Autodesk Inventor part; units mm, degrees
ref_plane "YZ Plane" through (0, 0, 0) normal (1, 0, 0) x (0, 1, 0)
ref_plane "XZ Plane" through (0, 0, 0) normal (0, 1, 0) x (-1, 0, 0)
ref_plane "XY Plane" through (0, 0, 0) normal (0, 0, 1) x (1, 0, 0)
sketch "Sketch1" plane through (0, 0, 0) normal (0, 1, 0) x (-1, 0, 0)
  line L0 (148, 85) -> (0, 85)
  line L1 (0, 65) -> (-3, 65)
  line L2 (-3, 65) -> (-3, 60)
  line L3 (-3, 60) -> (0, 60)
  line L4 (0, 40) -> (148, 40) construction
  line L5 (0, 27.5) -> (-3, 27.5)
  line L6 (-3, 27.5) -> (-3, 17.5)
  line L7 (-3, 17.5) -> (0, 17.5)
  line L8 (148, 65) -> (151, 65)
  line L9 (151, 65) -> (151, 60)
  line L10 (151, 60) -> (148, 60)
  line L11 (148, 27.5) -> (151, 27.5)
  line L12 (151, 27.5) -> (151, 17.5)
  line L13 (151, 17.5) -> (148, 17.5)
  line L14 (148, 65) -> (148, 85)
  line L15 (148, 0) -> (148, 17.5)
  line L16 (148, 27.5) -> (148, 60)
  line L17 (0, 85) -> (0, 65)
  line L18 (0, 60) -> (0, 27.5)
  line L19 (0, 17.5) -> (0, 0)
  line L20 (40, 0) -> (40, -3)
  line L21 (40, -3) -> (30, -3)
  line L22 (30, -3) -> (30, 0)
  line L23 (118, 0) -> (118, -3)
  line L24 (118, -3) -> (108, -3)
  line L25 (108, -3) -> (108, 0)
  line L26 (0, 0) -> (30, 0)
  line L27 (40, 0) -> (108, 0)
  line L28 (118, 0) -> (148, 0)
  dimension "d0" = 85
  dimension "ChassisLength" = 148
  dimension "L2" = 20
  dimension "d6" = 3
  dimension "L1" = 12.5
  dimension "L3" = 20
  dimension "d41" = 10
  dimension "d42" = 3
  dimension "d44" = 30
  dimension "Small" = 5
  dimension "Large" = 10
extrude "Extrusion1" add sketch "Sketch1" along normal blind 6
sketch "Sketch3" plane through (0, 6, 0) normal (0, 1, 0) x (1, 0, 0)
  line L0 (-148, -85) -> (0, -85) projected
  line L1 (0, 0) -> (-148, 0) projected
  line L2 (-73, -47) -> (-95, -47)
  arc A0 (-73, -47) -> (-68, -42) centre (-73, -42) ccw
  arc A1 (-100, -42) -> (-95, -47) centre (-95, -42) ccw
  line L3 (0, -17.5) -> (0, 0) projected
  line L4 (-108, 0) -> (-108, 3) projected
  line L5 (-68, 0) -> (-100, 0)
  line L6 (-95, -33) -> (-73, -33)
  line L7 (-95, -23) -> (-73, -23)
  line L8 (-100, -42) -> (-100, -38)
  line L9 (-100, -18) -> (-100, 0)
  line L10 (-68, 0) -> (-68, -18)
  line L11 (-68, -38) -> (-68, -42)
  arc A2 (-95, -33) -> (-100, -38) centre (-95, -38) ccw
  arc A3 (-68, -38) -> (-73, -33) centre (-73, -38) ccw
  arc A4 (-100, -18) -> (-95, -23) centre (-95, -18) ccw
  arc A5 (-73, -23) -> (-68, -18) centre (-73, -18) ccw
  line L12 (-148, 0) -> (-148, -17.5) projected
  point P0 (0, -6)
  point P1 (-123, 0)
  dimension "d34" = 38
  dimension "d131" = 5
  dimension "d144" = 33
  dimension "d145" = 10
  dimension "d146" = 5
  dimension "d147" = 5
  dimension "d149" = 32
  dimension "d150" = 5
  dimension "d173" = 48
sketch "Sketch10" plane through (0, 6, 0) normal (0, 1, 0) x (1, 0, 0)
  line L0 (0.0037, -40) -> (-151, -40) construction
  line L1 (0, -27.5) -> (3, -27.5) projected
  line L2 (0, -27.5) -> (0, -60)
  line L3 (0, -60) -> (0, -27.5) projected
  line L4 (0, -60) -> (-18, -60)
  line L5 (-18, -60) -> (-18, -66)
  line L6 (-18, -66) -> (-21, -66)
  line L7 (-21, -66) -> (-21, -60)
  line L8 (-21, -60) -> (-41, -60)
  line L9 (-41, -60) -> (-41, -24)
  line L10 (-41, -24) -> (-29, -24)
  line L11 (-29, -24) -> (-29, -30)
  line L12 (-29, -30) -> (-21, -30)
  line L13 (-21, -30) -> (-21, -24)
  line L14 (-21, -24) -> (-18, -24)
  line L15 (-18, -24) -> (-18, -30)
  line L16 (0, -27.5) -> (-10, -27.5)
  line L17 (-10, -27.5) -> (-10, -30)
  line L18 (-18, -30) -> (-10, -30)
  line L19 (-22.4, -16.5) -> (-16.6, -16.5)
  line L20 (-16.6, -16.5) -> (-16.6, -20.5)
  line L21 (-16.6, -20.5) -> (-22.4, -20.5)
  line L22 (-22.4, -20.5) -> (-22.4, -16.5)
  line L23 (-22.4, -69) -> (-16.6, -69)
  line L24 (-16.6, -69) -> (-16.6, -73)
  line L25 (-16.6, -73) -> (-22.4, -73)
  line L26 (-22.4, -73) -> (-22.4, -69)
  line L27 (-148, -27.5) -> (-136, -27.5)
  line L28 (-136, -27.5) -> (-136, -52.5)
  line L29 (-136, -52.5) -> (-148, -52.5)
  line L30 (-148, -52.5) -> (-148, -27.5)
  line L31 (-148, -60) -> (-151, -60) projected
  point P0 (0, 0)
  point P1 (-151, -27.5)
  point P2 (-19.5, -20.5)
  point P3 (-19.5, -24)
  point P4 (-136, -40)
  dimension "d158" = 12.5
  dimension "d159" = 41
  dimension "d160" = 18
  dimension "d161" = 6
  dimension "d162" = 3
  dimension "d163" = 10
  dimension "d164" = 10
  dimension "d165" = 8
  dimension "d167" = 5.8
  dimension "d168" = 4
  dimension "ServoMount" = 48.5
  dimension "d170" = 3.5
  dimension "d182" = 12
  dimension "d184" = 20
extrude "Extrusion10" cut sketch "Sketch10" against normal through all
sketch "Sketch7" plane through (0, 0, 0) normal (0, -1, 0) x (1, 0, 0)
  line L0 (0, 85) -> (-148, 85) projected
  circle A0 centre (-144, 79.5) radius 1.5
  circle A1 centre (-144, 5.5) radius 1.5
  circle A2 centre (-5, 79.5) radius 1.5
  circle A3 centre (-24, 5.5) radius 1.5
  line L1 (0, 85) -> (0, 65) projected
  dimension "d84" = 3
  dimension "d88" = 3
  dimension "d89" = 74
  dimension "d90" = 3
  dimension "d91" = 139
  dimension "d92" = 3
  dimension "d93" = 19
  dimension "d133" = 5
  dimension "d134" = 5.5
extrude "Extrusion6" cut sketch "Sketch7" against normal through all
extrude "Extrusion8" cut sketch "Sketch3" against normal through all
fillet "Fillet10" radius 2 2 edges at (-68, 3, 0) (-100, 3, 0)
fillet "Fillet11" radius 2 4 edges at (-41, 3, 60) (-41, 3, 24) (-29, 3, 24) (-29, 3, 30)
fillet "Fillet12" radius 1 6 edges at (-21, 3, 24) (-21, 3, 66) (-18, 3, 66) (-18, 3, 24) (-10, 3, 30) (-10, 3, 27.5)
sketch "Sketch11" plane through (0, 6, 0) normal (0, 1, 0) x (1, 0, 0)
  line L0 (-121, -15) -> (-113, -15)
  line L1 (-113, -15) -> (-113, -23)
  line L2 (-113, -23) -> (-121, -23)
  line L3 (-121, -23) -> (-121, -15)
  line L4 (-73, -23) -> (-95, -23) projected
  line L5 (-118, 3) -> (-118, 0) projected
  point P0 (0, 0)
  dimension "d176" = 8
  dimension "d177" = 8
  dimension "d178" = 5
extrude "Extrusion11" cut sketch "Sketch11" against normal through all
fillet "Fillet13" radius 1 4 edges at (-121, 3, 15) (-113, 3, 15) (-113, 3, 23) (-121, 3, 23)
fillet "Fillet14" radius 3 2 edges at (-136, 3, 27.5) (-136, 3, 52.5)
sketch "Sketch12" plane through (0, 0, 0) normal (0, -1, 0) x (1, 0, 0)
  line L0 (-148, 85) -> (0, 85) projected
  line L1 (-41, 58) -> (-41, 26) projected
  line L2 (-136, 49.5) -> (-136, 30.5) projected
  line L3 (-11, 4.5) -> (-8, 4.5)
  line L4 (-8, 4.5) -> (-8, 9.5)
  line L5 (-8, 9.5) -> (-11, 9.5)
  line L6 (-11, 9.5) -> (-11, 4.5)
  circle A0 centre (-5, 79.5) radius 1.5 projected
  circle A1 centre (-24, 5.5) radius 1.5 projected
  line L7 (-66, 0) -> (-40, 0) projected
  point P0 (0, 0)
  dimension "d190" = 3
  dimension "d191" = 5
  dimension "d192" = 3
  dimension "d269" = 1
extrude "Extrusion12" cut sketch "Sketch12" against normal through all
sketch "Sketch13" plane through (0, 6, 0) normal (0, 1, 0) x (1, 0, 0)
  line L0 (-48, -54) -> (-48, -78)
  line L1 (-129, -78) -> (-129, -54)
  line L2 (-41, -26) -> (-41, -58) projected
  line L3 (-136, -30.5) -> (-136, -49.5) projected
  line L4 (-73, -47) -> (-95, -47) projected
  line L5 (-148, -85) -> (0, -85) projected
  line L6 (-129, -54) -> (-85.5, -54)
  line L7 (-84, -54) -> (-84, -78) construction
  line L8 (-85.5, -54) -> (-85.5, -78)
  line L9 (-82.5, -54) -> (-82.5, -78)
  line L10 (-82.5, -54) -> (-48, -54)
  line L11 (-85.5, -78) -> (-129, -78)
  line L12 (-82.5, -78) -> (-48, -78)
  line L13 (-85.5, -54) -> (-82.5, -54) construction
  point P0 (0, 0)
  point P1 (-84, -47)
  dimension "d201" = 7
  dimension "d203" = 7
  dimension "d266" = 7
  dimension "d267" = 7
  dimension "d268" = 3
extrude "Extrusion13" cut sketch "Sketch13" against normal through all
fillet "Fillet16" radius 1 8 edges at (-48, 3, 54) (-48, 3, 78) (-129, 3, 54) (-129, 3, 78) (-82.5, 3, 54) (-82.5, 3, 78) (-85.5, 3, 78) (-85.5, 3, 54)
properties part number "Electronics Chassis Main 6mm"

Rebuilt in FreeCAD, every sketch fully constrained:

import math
import FreeCAD as App
import Part
import Sketcher

V = App.Vector
Q = App.Units.Quantity


def edges_at(feature, points):
    """Names of the edges that pass closest to the given points."""
    edges = feature.Shape.Edges
    near = lambda p: min(range(len(edges)), key=lambda i: edges[i].distToShape(Part.Vertex(*p))[0])
    return sorted({f"Edge{near(p) + 1}" for p in points})


def add_polygon(sketch, points):
    """Adds a closed chain of lines whose ends are joined by coincident constraints."""
    first, n = sketch.GeometryCount, len(points)
    for a, b in zip(points, points[1:] + points[:1]):
        sketch.addGeometry(Part.LineSegment(App.Vector(*a, 0), App.Vector(*b, 0)), False)
    for i in range(n):
        sketch.addConstraint(Sketcher.Constraint("Coincident", first + i, 2, first + (i + 1) % n, 1))

doc = App.newDocument("Part")
params = doc.addObject("Spreadsheet::Sheet", "Params")
for row, (alias, value) in enumerate([
    ("sketch1_width", "148 mm"),
    ("sketch1_width2", "3 mm"),
    ("sketch1_width3", "30 mm"),
    ("sketch1_width4", "10 mm"),
    ("sketch1_height", "20 mm"),
    ("pad1_length", "6 mm"),
    ("sketch2_width", "10 mm"),
    ("sketch2_width2", "8 mm"),
    ("sketch2_width3", "3 mm"),
    ("sketch2_width4", "12 mm"),
    ("sketch2_height", "6 mm"),
    ("sketch3_diameter", "3 mm"),
    ("sketch4_radius", "5 mm"),
    ("sketch4_width", "32 mm"),
    ("sketch4_height", "4 mm"),
    ("fillet_radius", "2 mm"),
    ("fillet2_radius", "2 mm"),
    ("fillet3_radius", "1 mm"),
    ("sketch5_width", "8 mm"),
    ("fillet4_radius", "1 mm"),
    ("fillet5_radius", "3 mm"),
    ("sketch6_diameter", "3 mm"),
    ("sketch6_width", "3 mm"),
    ("sketch6_height", "5 mm"),
    ("sketch7_height", "24 mm"),
    ("sketch7_width", "34.5 mm"),
    ("sketch7_width2", "43.5 mm"),
    ("fillet6_radius", "1 mm"),
], start=1):
    params.set(f"A{row}", alias)
    params.set(f"B{row}", "=" + value)
    params.setAlias(f"B{row}", alias)

body = doc.addObject("PartDesign::Body", "Body")

sketch1 = body.newObject("Sketcher::SketchObject", "Sketch")
sketch1.AttachmentSupport = (doc.getObject("XZ_Plane"), [""])
sketch1.MapMode = "FlatFace"
add_polygon(sketch1, [(-148, 65), (-148, 85), (0, 85), (0, 65), (3, 65), (3, 60), (0, 60), (0, 27.5), (3, 27.5), (3, 17.5), (0, 17.5), (0, 0), (-30, 0), (-30, -3), (-40, -3), (-40, 0), (-108, 0), (-108, -3), (-118, -3), (-118, 0), (-148, 0), (-148, 17.5), (-151, 17.5), (-151, 27.5), (-148, 27.5), (-148, 60), (-151, 60), (-151, 65)])
sketch1.addConstraint(Sketcher.Constraint("Vertical", 0))
sketch1.addConstraint(Sketcher.Constraint("Horizontal", 1))
sketch1.addConstraint(Sketcher.Constraint("Vertical", 2))
sketch1.addConstraint(Sketcher.Constraint("Horizontal", 3))
sketch1.addConstraint(Sketcher.Constraint("Vertical", 4))
sketch1.addConstraint(Sketcher.Constraint("Horizontal", 5))
sketch1.addConstraint(Sketcher.Constraint("Vertical", 6))
sketch1.addConstraint(Sketcher.Constraint("Horizontal", 7))
sketch1.addConstraint(Sketcher.Constraint("Vertical", 8))
sketch1.addConstraint(Sketcher.Constraint("Horizontal", 9))
sketch1.addConstraint(Sketcher.Constraint("Vertical", 10))
sketch1.addConstraint(Sketcher.Constraint("Horizontal", 11))
sketch1.addConstraint(Sketcher.Constraint("Vertical", 12))
sketch1.addConstraint(Sketcher.Constraint("Horizontal", 13))
sketch1.addConstraint(Sketcher.Constraint("Vertical", 14))
sketch1.addConstraint(Sketcher.Constraint("Horizontal", 15))
sketch1.addConstraint(Sketcher.Constraint("Vertical", 16))
sketch1.addConstraint(Sketcher.Constraint("Horizontal", 17))
sketch1.addConstraint(Sketcher.Constraint("Vertical", 18))
sketch1.addConstraint(Sketcher.Constraint("Horizontal", 19))
sketch1.addConstraint(Sketcher.Constraint("Vertical", 20))
sketch1.addConstraint(Sketcher.Constraint("Horizontal", 21))
sketch1.addConstraint(Sketcher.Constraint("Vertical", 22))
sketch1.addConstraint(Sketcher.Constraint("Horizontal", 23))
sketch1.addConstraint(Sketcher.Constraint("Vertical", 24))
sketch1.addConstraint(Sketcher.Constraint("Horizontal", 25))
sketch1.addConstraint(Sketcher.Constraint("Vertical", 26))
sketch1.addConstraint(Sketcher.Constraint("Horizontal", 27))
sketch1.addConstraint(Sketcher.Constraint("Coincident", 10, 2, -1, 1))
sketch1.addConstraint(Sketcher.Constraint("PointOnObject", 1, 2, -2))
sketch1.addConstraint(Sketcher.Constraint("PointOnObject", 5, 2, -2))
sketch1.addConstraint(Sketcher.Constraint("PointOnObject", 14, 2, -1))
sketch1.addConstraint(Sketcher.Constraint("PointOnObject", 18, 2, -1))
sketch1.addConstraint(Sketcher.Constraint("Horizontal", 13, 2, 16, 2))
sketch1.addConstraint(Sketcher.Constraint("Horizontal", 9, 2, 20, 2))
sketch1.addConstraint(Sketcher.Constraint("Horizontal", 7, 2, 22, 2))
sketch1.addConstraint(Sketcher.Constraint("Horizontal", 5, 2, 24, 2))
sketch1.addConstraint(Sketcher.Constraint("Horizontal", 3, 2, 26, 2))
sketch1.addConstraint(Sketcher.Constraint("Vertical", 4, 2, 7, 2))
sketch1.addConstraint(Sketcher.Constraint("Vertical", 0, 2, 19, 2))
sketch1.addConstraint(Sketcher.Constraint("Vertical", 20, 2, 23, 2))
sketch1.addConstraint(Sketcher.Constraint("Vertical", 22, 2, 25, 2))
sketch1.addConstraint(Sketcher.Constraint("Equal", 13, 17))
sketch1.addConstraint(Sketcher.Constraint("Equal", 11, 19))
sketch1.addConstraint(Sketcher.Constraint("Equal", 9, 21))
sketch1.addConstraint(Sketcher.Constraint("Equal", 17, 8))
sketch1.addConstraint(Sketcher.Constraint("Equal", 27, 12))
sketch1.addConstraint(Sketcher.Constraint("DistanceX", 1, 1, 1, 2, Q("148 mm")))
sketch1.addConstraint(Sketcher.Constraint("DistanceX", 3, 1, 3, 2, Q("3 mm")))
sketch1.addConstraint(Sketcher.Constraint("DistanceX", 11, 2, 11, 1, Q("30 mm")))
sketch1.addConstraint(Sketcher.Constraint("DistanceX", 13, 2, 13, 1, Q("10 mm")))
sketch1.addConstraint(Sketcher.Constraint("DistanceY", 0, 1, 0, 2, Q("20 mm")))
sketch1.addConstraint(Sketcher.Constraint("DistanceY", 4, 2, 4, 1, Q("5 mm")))
sketch1.addConstraint(Sketcher.Constraint("DistanceY", -1, 1, 0, 2, Q("85 mm")))
sketch1.addConstraint(Sketcher.Constraint("DistanceY", 6, 2, 6, 1, Q("32.5 mm")))
sketch1.setExpression("Constraints[75]", "Params.sketch1_width")
sketch1.setExpression("Constraints[76]", "Params.sketch1_width2")
sketch1.setExpression("Constraints[77]", "Params.sketch1_width3")
sketch1.setExpression("Constraints[78]", "Params.sketch1_width4")
sketch1.setExpression("Constraints[79]", "Params.sketch1_height")
pad1 = body.newObject("PartDesign::Pad", "Pad")
pad1.Profile = sketch1
pad1.setExpression("Length", "Params.pad1_length")
pad1.Reversed = True

sketch2 = body.newObject("Sketcher::SketchObject", "Sketch001")
sketch2.AttachmentSupport = (doc.getObject("XZ_Plane"), [""])
sketch2.MapMode = "FlatFace"
sketch2.AttachmentOffset = App.Placement(V(0, 0, -6), App.Rotation())
add_polygon(sketch2, [(0, 60), (0, 27.5), (-10, 27.5), (-10, 30), (-18, 30), (-18, 24), (-21, 24), (-21, 30), (-29, 30), (-29, 24), (-41, 24), (-41, 60), (-21, 60), (-21, 66), (-18, 66), (-18, 60)])
add_polygon(sketch2, [(-16.6, 16.5), (-22.4, 16.5), (-22.4, 20.5), (-16.6, 20.5)])
add_polygon(sketch2, [(-16.6, 69), (-22.4, 69), (-22.4, 73), (-16.6, 73)])
add_polygon(sketch2, [(-136, 27.5), (-148, 27.5), (-148, 52.5), (-136, 52.5)])
sketch2.addConstraint(Sketcher.Constraint("Vertical", 0))
sketch2.addConstraint(Sketcher.Constraint("Horizontal", 1))
sketch2.addConstraint(Sketcher.Constraint("Vertical", 2))
sketch2.addConstraint(Sketcher.Constraint("Horizontal", 3))
sketch2.addConstraint(Sketcher.Constraint("Vertical", 4))
sketch2.addConstraint(Sketcher.Constraint("Horizontal", 5))
sketch2.addConstraint(Sketcher.Constraint("Vertical", 6))
sketch2.addConstraint(Sketcher.Constraint("Horizontal", 7))
sketch2.addConstraint(Sketcher.Constraint("Vertical", 8))
sketch2.addConstraint(Sketcher.Constraint("Horizontal", 9))
sketch2.addConstraint(Sketcher.Constraint("Vertical", 10))
sketch2.addConstraint(Sketcher.Constraint("Horizontal", 11))
sketch2.addConstraint(Sketcher.Constraint("Vertical", 12))
sketch2.addConstraint(Sketcher.Constraint("Horizontal", 13))
sketch2.addConstraint(Sketcher.Constraint("Vertical", 14))
sketch2.addConstraint(Sketcher.Constraint("Horizontal", 15))
sketch2.addConstraint(Sketcher.Constraint("Horizontal", 16))
sketch2.addConstraint(Sketcher.Constraint("Vertical", 17))
sketch2.addConstraint(Sketcher.Constraint("Horizontal", 18))
sketch2.addConstraint(Sketcher.Constraint("Vertical", 19))
sketch2.addConstraint(Sketcher.Constraint("Horizontal", 20))
sketch2.addConstraint(Sketcher.Constraint("Vertical", 21))
sketch2.addConstraint(Sketcher.Constraint("Horizontal", 22))
sketch2.addConstraint(Sketcher.Constraint("Vertical", 23))
sketch2.addConstraint(Sketcher.Constraint("Horizontal", 24))
sketch2.addConstraint(Sketcher.Constraint("Vertical", 25))
sketch2.addConstraint(Sketcher.Constraint("Horizontal", 26))
sketch2.addConstraint(Sketcher.Constraint("Vertical", 27))
sketch2.addConstraint(Sketcher.Constraint("PointOnObject", 0, 2, -2))
sketch2.addConstraint(Sketcher.Constraint("Horizontal", 3, 2, 6, 2))
sketch2.addConstraint(Sketcher.Constraint("Horizontal", 5, 2, 8, 2))
sketch2.addConstraint(Sketcher.Constraint("Horizontal", 11, 2, 14, 2))
sketch2.addConstraint(Sketcher.Constraint("Horizontal", 1, 2, 24, 2))
sketch2.addConstraint(Sketcher.Constraint("Vertical", 6, 2, 11, 2))
sketch2.addConstraint(Sketcher.Constraint("Vertical", 4, 2, 13, 2))
sketch2.addConstraint(Sketcher.Constraint("Vertical", 17, 2, 20, 2))
sketch2.addConstraint(Sketcher.Constraint("Vertical", 19, 2, 22, 2))
sketch2.addConstraint(Sketcher.Constraint("Equal", 3, 7))
sketch2.addConstraint(Sketcher.Constraint("Equal", 9, 24))
sketch2.addConstraint(Sketcher.Constraint("Equal", 8, 12))
sketch2.addConstraint(Sketcher.Constraint("Equal", 19, 21))
sketch2.addConstraint(Sketcher.Constraint("DistanceX", 1, 2, 1, 1, Q("10 mm")))
sketch2.addConstraint(Sketcher.Constraint("DistanceX", 3, 2, 3, 1, Q("8 mm")))
sketch2.addConstraint(Sketcher.Constraint("DistanceX", 5, 2, 5, 1, Q("3 mm")))
sketch2.addConstraint(Sketcher.Constraint("DistanceX", 9, 2, 9, 1, Q("12 mm")))
sketch2.addConstraint(Sketcher.Constraint("DistanceY", 4, 2, 4, 1, Q("6 mm")))
sketch2.addConstraint(Sketcher.Constraint("DistanceY", 17, 1, 17, 2, Q("4 mm")))
sketch2.addConstraint(Sketcher.Constraint("DistanceX", 16, 2, 16, 1, Q("5.8 mm")))
sketch2.addConstraint(Sketcher.Constraint("DistanceY", 12, 2, 20, 2, Q("3 mm")))
sketch2.addConstraint(Sketcher.Constraint("DistanceY", 4, 2, 1, 2, Q("3.5 mm")))
sketch2.addConstraint(Sketcher.Constraint("DistanceY", 17, 2, 5, 2, Q("3.5 mm")))
sketch2.addConstraint(Sketcher.Constraint("DistanceY", 10, 1, 10, 2, Q("36 mm")))
sketch2.addConstraint(Sketcher.Constraint("DistanceY", 25, 1, 25, 2, Q("25 mm")))
sketch2.addConstraint(Sketcher.Constraint("DistanceY", -1, 1, 2, 2, Q("30 mm")))
sketch2.addConstraint(Sketcher.Constraint("DistanceX", 24, 2, -1, 1, Q("148 mm")))
sketch2.addConstraint(Sketcher.Constraint("DistanceX", 16, 2, -1, 1, Q("22.4 mm")))
sketch2.setExpression("Constraints[69]", "Params.sketch2_width")
sketch2.setExpression("Constraints[70]", "Params.sketch2_width2")
sketch2.setExpression("Constraints[71]", "Params.sketch2_width3")
sketch2.setExpression("Constraints[72]", "Params.sketch2_width4")
sketch2.setExpression("Constraints[73]", "Params.sketch2_height")
pocket1 = body.newObject("PartDesign::Pocket", "Pocket")
pocket1.Profile = sketch2
pocket1.Type = "ThroughAll"
pocket1.Reversed = True

sketch3 = body.newObject("Sketcher::SketchObject", "Sketch002")
sketch3.AttachmentSupport = (doc.getObject("XZ_Plane"), [""])
sketch3.MapMode = "FlatFace"
sketch3.addGeometry(Part.Circle(V(-144, 79.5, 0), V(0, 0, 1), 1.5), False)
sketch3.addGeometry(Part.Circle(V(-144, 5.5, 0), V(0, 0, 1), 1.5), False)
sketch3.addGeometry(Part.Circle(V(-5, 79.5, 0), V(0, 0, 1), 1.5), False)
sketch3.addGeometry(Part.Circle(V(-24, 5.5, 0), V(0, 0, 1), 1.5), False)
sketch3.addConstraint(Sketcher.Constraint("Equal", 0, 1))
sketch3.addConstraint(Sketcher.Constraint("Equal", 1, 2))
sketch3.addConstraint(Sketcher.Constraint("Equal", 2, 3))
sketch3.addConstraint(Sketcher.Constraint("Horizontal", 0, 3, 2, 3))
sketch3.addConstraint(Sketcher.Constraint("Horizontal", 1, 3, 3, 3))
sketch3.addConstraint(Sketcher.Constraint("Vertical", 0, 3, 1, 3))
sketch3.addConstraint(Sketcher.Constraint("Diameter", 0, Q("3 mm")))
sketch3.addConstraint(Sketcher.Constraint("DistanceX", 2, 3, -1, 1, Q("5 mm")))
sketch3.addConstraint(Sketcher.Constraint("DistanceY", 1, 3, 0, 3, Q("74 mm")))
sketch3.addConstraint(Sketcher.Constraint("DistanceX", 0, 3, 2, 3, Q("139 mm")))
sketch3.addConstraint(Sketcher.Constraint("DistanceX", 3, 3, 2, 3, Q("19 mm")))
sketch3.addConstraint(Sketcher.Constraint("DistanceY", -1, 1, 1, 3, Q("5.5 mm")))
sketch3.setExpression("Constraints[6]", "Params.sketch3_diameter")
pocket2 = body.newObject("PartDesign::Pocket", "Pocket001")
pocket2.Profile = sketch3
pocket2.Type = "ThroughAll"

sketch4 = body.newObject("Sketcher::SketchObject", "Sketch003")
sketch4.AttachmentSupport = (doc.getObject("XZ_Plane"), [""])
sketch4.MapMode = "FlatFace"
sketch4.AttachmentOffset = App.Placement(V(0, 0, -6), App.Rotation())
sketch4.addGeometry(Part.LineSegment(V(-68, 18, 0), V(-68, 0, 0)), False)
sketch4.addGeometry(Part.LineSegment(V(-68, 0, 0), V(-100, 0, 0)), False)
sketch4.addGeometry(Part.LineSegment(V(-100, 0, 0), V(-100, 18, 0)), False)
sketch4.addGeometry(Part.ArcOfCircle(Part.Circle(V(-95, 18, 0), V(0, 0, 1), 5), math.radians(90), math.radians(180)), False)
sketch4.addGeometry(Part.LineSegment(V(-95, 23, 0), V(-73, 23, 0)), False)
sketch4.addGeometry(Part.ArcOfCircle(Part.Circle(V(-73, 18, 0), V(0, 0, 1), 5), math.radians(0), math.radians(90)), False)
sketch4.addGeometry(Part.LineSegment(V(-95, 47, 0), V(-73, 47, 0)), False)
sketch4.addGeometry(Part.ArcOfCircle(Part.Circle(V(-73, 42, 0), V(0, 0, 1), 5), math.radians(0), math.radians(90)), False)
sketch4.addGeometry(Part.LineSegment(V(-68, 42, 0), V(-68, 38, 0)), False)
sketch4.addGeometry(Part.ArcOfCircle(Part.Circle(V(-73, 38, 0), V(0, 0, 1), 5), math.radians(-90), math.radians(0)), False)
sketch4.addGeometry(Part.LineSegment(V(-73, 33, 0), V(-95, 33, 0)), False)
sketch4.addGeometry(Part.ArcOfCircle(Part.Circle(V(-95, 38, 0), V(0, 0, 1), 5), math.radians(180), math.radians(270)), False)
sketch4.addGeometry(Part.LineSegment(V(-100, 38, 0), V(-100, 42, 0)), False)
sketch4.addGeometry(Part.ArcOfCircle(Part.Circle(V(-95, 42, 0), V(0, 0, 1), 5), math.radians(90), math.radians(180)), False)
sketch4.addConstraint(Sketcher.Constraint("Coincident", 0, 2, 1, 1))
sketch4.addConstraint(Sketcher.Constraint("Coincident", 1, 2, 2, 1))
sketch4.addConstraint(Sketcher.Constraint("Tangent", 2, 2, 3, 2))
sketch4.addConstraint(Sketcher.Constraint("Tangent", 3, 1, 4, 1))
sketch4.addConstraint(Sketcher.Constraint("Tangent", 4, 2, 5, 2))
sketch4.addConstraint(Sketcher.Constraint("Tangent", 5, 1, 0, 1))
sketch4.addConstraint(Sketcher.Constraint("Tangent", 6, 2, 7, 2))
sketch4.addConstraint(Sketcher.Constraint("Tangent", 7, 1, 8, 1))
sketch4.addConstraint(Sketcher.Constraint("Tangent", 8, 2, 9, 2))
sketch4.addConstraint(Sketcher.Constraint("Tangent", 9, 1, 10, 1))
sketch4.addConstraint(Sketcher.Constraint("Tangent", 10, 2, 11, 2))
sketch4.addConstraint(Sketcher.Constraint("Tangent", 11, 1, 12, 1))
sketch4.addConstraint(Sketcher.Constraint("Tangent", 12, 2, 13, 2))
sketch4.addConstraint(Sketcher.Constraint("Tangent", 13, 1, 6, 1))
sketch4.addConstraint(Sketcher.Constraint("Vertical", 0))
sketch4.addConstraint(Sketcher.Constraint("Horizontal", 1))
sketch4.addConstraint(Sketcher.Constraint("Vertical", 2))
sketch4.addConstraint(Sketcher.Constraint("Horizontal", 4))
sketch4.addConstraint(Sketcher.Constraint("Horizontal", 6))
sketch4.addConstraint(Sketcher.Constraint("Vertical", 8))
sketch4.addConstraint(Sketcher.Constraint("Horizontal", 10))
sketch4.addConstraint(Sketcher.Constraint("Vertical", 12))
sketch4.addConstraint(Sketcher.Constraint("Equal", 3, 5))
sketch4.addConstraint(Sketcher.Constraint("Equal", 5, 7))
sketch4.addConstraint(Sketcher.Constraint("Equal", 7, 9))
sketch4.addConstraint(Sketcher.Constraint("Equal", 9, 11))
sketch4.addConstraint(Sketcher.Constraint("Equal", 11, 13))
sketch4.addConstraint(Sketcher.Constraint("PointOnObject", 0, 2, -1))
sketch4.addConstraint(Sketcher.Constraint("Vertical", 5, 3, 7, 3))
sketch4.addConstraint(Sketcher.Constraint("Vertical", 3, 3, 11, 3))
sketch4.addConstraint(Sketcher.Constraint("Radius", 3, Q("5 mm")))
sketch4.addConstraint(Sketcher.Constraint("DistanceX", 1, 2, 1, 1, Q("32 mm")))
sketch4.addConstraint(Sketcher.Constraint("DistanceY", -1, 1, 9, 3, Q("38 mm")))
sketch4.addConstraint(Sketcher.Constraint("DistanceY", 4, 2, 9, 1, Q("10 mm")))
sketch4.addConstraint(Sketcher.Constraint("DistanceY", 8, 2, 8, 1, Q("4 mm")))
sketch4.addConstraint(Sketcher.Constraint("DistanceX", 3, 3, -1, 1, Q("95 mm")))
sketch4.setExpression("Constraints[30]", "Params.sketch4_radius")
sketch4.setExpression("Constraints[31]", "Params.sketch4_width")
sketch4.setExpression("Constraints[34]", "Params.sketch4_height")
pocket3 = body.newObject("PartDesign::Pocket", "Pocket002")
pocket3.Profile = sketch4
pocket3.Type = "ThroughAll"
pocket3.Reversed = True
doc.recompute()

fillet = body.newObject("PartDesign::Fillet", "Fillet")
fillet.Base = (pocket3, edges_at(pocket3, [(-68, 3, 0), (-100, 3, 0)]))
fillet.setExpression("Radius", "Params.fillet_radius")
doc.recompute()

fillet2 = body.newObject("PartDesign::Fillet", "Fillet001")
fillet2.Base = (fillet, edges_at(fillet, [
    (-41, 3, 60),
    (-41, 3, 24),
    (-29, 3, 24),
    (-29, 3, 30),
]))
fillet2.setExpression("Radius", "Params.fillet2_radius")
doc.recompute()

fillet3 = body.newObject("PartDesign::Fillet", "Fillet002")
fillet3.Base = (fillet2, edges_at(fillet2, [
    (-21, 3, 24),
    (-21, 3, 66),
    (-18, 3, 66),
    (-18, 3, 24),
    (-10, 3, 30),
    (-10, 3, 27.5),
]))
fillet3.setExpression("Radius", "Params.fillet3_radius")

sketch5 = body.newObject("Sketcher::SketchObject", "Sketch004")
sketch5.AttachmentSupport = (doc.getObject("XZ_Plane"), [""])
sketch5.MapMode = "FlatFace"
sketch5.AttachmentOffset = App.Placement(V(0, 0, -6), App.Rotation())
add_polygon(sketch5, [(-113, 15), (-121, 15), (-121, 23), (-113, 23)])
sketch5.addConstraint(Sketcher.Constraint("Horizontal", 0))
sketch5.addConstraint(Sketcher.Constraint("Vertical", 1))
sketch5.addConstraint(Sketcher.Constraint("Horizontal", 2))
sketch5.addConstraint(Sketcher.Constraint("Vertical", 3))
sketch5.addConstraint(Sketcher.Constraint("Equal", 2, 1))
sketch5.addConstraint(Sketcher.Constraint("DistanceX", 0, 2, 0, 1, Q("8 mm")))
sketch5.addConstraint(Sketcher.Constraint("DistanceX", 0, 2, -1, 1, Q("121 mm")))
sketch5.addConstraint(Sketcher.Constraint("DistanceY", -1, 1, 0, 2, Q("15 mm")))
sketch5.setExpression("Constraints[9]", "Params.sketch5_width")
pocket4 = body.newObject("PartDesign::Pocket", "Pocket003")
pocket4.Profile = sketch5
pocket4.Type = "ThroughAll"
pocket4.Reversed = True
doc.recompute()

fillet4 = body.newObject("PartDesign::Fillet", "Fillet003")
fillet4.Base = (pocket4, edges_at(pocket4, [
    (-121, 3, 15),
    (-113, 3, 15),
    (-113, 3, 23),
    (-121, 3, 23),
]))
fillet4.setExpression("Radius", "Params.fillet4_radius")
doc.recompute()

fillet5 = body.newObject("PartDesign::Fillet", "Fillet004")
fillet5.Base = (fillet4, edges_at(fillet4, [(-136, 3, 27.5), (-136, 3, 52.5)]))
fillet5.setExpression("Radius", "Params.fillet5_radius")

sketch6 = body.newObject("Sketcher::SketchObject", "Sketch005")
sketch6.AttachmentSupport = (doc.getObject("XZ_Plane"), [""])
sketch6.MapMode = "FlatFace"
add_polygon(sketch6, [(-11, 9.5), (-11, 4.5), (-8, 4.5), (-8, 9.5)])
sketch6.addGeometry(Part.Circle(V(-5, 79.5, 0), V(0, 0, 1), 1.5), False)
sketch6.addGeometry(Part.Circle(V(-24, 5.5, 0), V(0, 0, 1), 1.5), False)
sketch6.addConstraint(Sketcher.Constraint("Vertical", 0))
sketch6.addConstraint(Sketcher.Constraint("Horizontal", 1))
sketch6.addConstraint(Sketcher.Constraint("Vertical", 2))
sketch6.addConstraint(Sketcher.Constraint("Horizontal", 3))
sketch6.addConstraint(Sketcher.Constraint("Equal", 4, 5))
sketch6.addConstraint(Sketcher.Constraint("Diameter", 4, Q("3 mm")))
sketch6.addConstraint(Sketcher.Constraint("DistanceX", 1, 1, 1, 2, Q("3 mm")))
sketch6.addConstraint(Sketcher.Constraint("DistanceY", 0, 2, 0, 1, Q("5 mm")))
sketch6.addConstraint(Sketcher.Constraint("DistanceX", 4, 3, -1, 1, Q("5 mm")))
sketch6.addConstraint(Sketcher.Constraint("DistanceY", 0, 2, 5, 3, Q("1 mm")))
sketch6.addConstraint(Sketcher.Constraint("DistanceX", 1, 2, 4, 3, Q("3 mm")))
sketch6.addConstraint(Sketcher.Constraint("DistanceX", 5, 3, -1, 1, Q("24 mm")))
sketch6.addConstraint(Sketcher.Constraint("DistanceY", 5, 3, 4, 3, Q("74 mm")))
sketch6.addConstraint(Sketcher.Constraint("DistanceY", -1, 1, 4, 3, Q("79.5 mm")))
sketch6.setExpression("Constraints[9]", "Params.sketch6_diameter")
sketch6.setExpression("Constraints[10]", "Params.sketch6_width")
sketch6.setExpression("Constraints[11]", "Params.sketch6_height")
pocket5 = body.newObject("PartDesign::Pocket", "Pocket004")
pocket5.Profile = sketch6
pocket5.Type = "ThroughAll"

sketch7 = body.newObject("Sketcher::SketchObject", "Sketch006")
sketch7.AttachmentSupport = (doc.getObject("XZ_Plane"), [""])
sketch7.MapMode = "FlatFace"
sketch7.AttachmentOffset = App.Placement(V(0, 0, -6), App.Rotation())
add_polygon(sketch7, [(-48, 78), (-48, 54), (-82, 54), (-82, 78)])
add_polygon(sketch7, [(-129, 54), (-129, 78), (-86, 78), (-86, 54)])
sketch7.addConstraint(Sketcher.Constraint("Vertical", 0))
sketch7.addConstraint(Sketcher.Constraint("Horizontal", 1))
sketch7.addConstraint(Sketcher.Constraint("Vertical", 2))
sketch7.addConstraint(Sketcher.Constraint("Horizontal", 3))
sketch7.addConstraint(Sketcher.Constraint("Vertical", 4))
sketch7.addConstraint(Sketcher.Constraint("Horizontal", 5))
sketch7.addConstraint(Sketcher.Constraint("Vertical", 6))
sketch7.addConstraint(Sketcher.Constraint("Horizontal", 7))
sketch7.addConstraint(Sketcher.Constraint("Horizontal", 3, 2, 4, 2))
sketch7.addConstraint(Sketcher.Constraint("Horizontal", 1, 2, 6, 2))
sketch7.addConstraint(Sketcher.Constraint("DistanceX", 5, 2, 2, 2, Q("3 mm")))
sketch7.addConstraint(Sketcher.Constraint("DistanceY", 0, 2, 0, 1, Q("24 mm")))
sketch7.addConstraint(Sketcher.Constraint("DistanceX", 1, 2, 1, 1, Q("34.5 mm")))
sketch7.addConstraint(Sketcher.Constraint("DistanceX", 5, 1, 5, 2, Q("43.5 mm")))
sketch7.addConstraint(Sketcher.Constraint("DistanceX", 0, 2, -1, 1, Q("48 mm")))
sketch7.addConstraint(Sketcher.Constraint("DistanceY", -1, 1, 0, 2, Q("54 mm")))
sketch7.setExpression("Constraints[19]", "Params.sketch7_height")
sketch7.setExpression("Constraints[20]", "Params.sketch7_width")
sketch7.setExpression("Constraints[21]", "Params.sketch7_width2")
pocket6 = body.newObject("PartDesign::Pocket", "Pocket005")
pocket6.Profile = sketch7
pocket6.Type = "ThroughAll"
pocket6.Reversed = True
doc.recompute()

fillet6 = body.newObject("PartDesign::Fillet", "Fillet005")
fillet6.Base = (pocket6, edges_at(pocket6, [
    (-48, 3, 54),
    (-48, 3, 78),
    (-129, 3, 54),
    (-129, 3, 78),
    (-82.5, 3, 54),
    (-82.5, 3, 78),
    (-85.5, 3, 78),
    (-85.5, 3, 54),
]))
fillet6.setExpression("Radius", "Params.fillet6_radius")

doc.recompute()
